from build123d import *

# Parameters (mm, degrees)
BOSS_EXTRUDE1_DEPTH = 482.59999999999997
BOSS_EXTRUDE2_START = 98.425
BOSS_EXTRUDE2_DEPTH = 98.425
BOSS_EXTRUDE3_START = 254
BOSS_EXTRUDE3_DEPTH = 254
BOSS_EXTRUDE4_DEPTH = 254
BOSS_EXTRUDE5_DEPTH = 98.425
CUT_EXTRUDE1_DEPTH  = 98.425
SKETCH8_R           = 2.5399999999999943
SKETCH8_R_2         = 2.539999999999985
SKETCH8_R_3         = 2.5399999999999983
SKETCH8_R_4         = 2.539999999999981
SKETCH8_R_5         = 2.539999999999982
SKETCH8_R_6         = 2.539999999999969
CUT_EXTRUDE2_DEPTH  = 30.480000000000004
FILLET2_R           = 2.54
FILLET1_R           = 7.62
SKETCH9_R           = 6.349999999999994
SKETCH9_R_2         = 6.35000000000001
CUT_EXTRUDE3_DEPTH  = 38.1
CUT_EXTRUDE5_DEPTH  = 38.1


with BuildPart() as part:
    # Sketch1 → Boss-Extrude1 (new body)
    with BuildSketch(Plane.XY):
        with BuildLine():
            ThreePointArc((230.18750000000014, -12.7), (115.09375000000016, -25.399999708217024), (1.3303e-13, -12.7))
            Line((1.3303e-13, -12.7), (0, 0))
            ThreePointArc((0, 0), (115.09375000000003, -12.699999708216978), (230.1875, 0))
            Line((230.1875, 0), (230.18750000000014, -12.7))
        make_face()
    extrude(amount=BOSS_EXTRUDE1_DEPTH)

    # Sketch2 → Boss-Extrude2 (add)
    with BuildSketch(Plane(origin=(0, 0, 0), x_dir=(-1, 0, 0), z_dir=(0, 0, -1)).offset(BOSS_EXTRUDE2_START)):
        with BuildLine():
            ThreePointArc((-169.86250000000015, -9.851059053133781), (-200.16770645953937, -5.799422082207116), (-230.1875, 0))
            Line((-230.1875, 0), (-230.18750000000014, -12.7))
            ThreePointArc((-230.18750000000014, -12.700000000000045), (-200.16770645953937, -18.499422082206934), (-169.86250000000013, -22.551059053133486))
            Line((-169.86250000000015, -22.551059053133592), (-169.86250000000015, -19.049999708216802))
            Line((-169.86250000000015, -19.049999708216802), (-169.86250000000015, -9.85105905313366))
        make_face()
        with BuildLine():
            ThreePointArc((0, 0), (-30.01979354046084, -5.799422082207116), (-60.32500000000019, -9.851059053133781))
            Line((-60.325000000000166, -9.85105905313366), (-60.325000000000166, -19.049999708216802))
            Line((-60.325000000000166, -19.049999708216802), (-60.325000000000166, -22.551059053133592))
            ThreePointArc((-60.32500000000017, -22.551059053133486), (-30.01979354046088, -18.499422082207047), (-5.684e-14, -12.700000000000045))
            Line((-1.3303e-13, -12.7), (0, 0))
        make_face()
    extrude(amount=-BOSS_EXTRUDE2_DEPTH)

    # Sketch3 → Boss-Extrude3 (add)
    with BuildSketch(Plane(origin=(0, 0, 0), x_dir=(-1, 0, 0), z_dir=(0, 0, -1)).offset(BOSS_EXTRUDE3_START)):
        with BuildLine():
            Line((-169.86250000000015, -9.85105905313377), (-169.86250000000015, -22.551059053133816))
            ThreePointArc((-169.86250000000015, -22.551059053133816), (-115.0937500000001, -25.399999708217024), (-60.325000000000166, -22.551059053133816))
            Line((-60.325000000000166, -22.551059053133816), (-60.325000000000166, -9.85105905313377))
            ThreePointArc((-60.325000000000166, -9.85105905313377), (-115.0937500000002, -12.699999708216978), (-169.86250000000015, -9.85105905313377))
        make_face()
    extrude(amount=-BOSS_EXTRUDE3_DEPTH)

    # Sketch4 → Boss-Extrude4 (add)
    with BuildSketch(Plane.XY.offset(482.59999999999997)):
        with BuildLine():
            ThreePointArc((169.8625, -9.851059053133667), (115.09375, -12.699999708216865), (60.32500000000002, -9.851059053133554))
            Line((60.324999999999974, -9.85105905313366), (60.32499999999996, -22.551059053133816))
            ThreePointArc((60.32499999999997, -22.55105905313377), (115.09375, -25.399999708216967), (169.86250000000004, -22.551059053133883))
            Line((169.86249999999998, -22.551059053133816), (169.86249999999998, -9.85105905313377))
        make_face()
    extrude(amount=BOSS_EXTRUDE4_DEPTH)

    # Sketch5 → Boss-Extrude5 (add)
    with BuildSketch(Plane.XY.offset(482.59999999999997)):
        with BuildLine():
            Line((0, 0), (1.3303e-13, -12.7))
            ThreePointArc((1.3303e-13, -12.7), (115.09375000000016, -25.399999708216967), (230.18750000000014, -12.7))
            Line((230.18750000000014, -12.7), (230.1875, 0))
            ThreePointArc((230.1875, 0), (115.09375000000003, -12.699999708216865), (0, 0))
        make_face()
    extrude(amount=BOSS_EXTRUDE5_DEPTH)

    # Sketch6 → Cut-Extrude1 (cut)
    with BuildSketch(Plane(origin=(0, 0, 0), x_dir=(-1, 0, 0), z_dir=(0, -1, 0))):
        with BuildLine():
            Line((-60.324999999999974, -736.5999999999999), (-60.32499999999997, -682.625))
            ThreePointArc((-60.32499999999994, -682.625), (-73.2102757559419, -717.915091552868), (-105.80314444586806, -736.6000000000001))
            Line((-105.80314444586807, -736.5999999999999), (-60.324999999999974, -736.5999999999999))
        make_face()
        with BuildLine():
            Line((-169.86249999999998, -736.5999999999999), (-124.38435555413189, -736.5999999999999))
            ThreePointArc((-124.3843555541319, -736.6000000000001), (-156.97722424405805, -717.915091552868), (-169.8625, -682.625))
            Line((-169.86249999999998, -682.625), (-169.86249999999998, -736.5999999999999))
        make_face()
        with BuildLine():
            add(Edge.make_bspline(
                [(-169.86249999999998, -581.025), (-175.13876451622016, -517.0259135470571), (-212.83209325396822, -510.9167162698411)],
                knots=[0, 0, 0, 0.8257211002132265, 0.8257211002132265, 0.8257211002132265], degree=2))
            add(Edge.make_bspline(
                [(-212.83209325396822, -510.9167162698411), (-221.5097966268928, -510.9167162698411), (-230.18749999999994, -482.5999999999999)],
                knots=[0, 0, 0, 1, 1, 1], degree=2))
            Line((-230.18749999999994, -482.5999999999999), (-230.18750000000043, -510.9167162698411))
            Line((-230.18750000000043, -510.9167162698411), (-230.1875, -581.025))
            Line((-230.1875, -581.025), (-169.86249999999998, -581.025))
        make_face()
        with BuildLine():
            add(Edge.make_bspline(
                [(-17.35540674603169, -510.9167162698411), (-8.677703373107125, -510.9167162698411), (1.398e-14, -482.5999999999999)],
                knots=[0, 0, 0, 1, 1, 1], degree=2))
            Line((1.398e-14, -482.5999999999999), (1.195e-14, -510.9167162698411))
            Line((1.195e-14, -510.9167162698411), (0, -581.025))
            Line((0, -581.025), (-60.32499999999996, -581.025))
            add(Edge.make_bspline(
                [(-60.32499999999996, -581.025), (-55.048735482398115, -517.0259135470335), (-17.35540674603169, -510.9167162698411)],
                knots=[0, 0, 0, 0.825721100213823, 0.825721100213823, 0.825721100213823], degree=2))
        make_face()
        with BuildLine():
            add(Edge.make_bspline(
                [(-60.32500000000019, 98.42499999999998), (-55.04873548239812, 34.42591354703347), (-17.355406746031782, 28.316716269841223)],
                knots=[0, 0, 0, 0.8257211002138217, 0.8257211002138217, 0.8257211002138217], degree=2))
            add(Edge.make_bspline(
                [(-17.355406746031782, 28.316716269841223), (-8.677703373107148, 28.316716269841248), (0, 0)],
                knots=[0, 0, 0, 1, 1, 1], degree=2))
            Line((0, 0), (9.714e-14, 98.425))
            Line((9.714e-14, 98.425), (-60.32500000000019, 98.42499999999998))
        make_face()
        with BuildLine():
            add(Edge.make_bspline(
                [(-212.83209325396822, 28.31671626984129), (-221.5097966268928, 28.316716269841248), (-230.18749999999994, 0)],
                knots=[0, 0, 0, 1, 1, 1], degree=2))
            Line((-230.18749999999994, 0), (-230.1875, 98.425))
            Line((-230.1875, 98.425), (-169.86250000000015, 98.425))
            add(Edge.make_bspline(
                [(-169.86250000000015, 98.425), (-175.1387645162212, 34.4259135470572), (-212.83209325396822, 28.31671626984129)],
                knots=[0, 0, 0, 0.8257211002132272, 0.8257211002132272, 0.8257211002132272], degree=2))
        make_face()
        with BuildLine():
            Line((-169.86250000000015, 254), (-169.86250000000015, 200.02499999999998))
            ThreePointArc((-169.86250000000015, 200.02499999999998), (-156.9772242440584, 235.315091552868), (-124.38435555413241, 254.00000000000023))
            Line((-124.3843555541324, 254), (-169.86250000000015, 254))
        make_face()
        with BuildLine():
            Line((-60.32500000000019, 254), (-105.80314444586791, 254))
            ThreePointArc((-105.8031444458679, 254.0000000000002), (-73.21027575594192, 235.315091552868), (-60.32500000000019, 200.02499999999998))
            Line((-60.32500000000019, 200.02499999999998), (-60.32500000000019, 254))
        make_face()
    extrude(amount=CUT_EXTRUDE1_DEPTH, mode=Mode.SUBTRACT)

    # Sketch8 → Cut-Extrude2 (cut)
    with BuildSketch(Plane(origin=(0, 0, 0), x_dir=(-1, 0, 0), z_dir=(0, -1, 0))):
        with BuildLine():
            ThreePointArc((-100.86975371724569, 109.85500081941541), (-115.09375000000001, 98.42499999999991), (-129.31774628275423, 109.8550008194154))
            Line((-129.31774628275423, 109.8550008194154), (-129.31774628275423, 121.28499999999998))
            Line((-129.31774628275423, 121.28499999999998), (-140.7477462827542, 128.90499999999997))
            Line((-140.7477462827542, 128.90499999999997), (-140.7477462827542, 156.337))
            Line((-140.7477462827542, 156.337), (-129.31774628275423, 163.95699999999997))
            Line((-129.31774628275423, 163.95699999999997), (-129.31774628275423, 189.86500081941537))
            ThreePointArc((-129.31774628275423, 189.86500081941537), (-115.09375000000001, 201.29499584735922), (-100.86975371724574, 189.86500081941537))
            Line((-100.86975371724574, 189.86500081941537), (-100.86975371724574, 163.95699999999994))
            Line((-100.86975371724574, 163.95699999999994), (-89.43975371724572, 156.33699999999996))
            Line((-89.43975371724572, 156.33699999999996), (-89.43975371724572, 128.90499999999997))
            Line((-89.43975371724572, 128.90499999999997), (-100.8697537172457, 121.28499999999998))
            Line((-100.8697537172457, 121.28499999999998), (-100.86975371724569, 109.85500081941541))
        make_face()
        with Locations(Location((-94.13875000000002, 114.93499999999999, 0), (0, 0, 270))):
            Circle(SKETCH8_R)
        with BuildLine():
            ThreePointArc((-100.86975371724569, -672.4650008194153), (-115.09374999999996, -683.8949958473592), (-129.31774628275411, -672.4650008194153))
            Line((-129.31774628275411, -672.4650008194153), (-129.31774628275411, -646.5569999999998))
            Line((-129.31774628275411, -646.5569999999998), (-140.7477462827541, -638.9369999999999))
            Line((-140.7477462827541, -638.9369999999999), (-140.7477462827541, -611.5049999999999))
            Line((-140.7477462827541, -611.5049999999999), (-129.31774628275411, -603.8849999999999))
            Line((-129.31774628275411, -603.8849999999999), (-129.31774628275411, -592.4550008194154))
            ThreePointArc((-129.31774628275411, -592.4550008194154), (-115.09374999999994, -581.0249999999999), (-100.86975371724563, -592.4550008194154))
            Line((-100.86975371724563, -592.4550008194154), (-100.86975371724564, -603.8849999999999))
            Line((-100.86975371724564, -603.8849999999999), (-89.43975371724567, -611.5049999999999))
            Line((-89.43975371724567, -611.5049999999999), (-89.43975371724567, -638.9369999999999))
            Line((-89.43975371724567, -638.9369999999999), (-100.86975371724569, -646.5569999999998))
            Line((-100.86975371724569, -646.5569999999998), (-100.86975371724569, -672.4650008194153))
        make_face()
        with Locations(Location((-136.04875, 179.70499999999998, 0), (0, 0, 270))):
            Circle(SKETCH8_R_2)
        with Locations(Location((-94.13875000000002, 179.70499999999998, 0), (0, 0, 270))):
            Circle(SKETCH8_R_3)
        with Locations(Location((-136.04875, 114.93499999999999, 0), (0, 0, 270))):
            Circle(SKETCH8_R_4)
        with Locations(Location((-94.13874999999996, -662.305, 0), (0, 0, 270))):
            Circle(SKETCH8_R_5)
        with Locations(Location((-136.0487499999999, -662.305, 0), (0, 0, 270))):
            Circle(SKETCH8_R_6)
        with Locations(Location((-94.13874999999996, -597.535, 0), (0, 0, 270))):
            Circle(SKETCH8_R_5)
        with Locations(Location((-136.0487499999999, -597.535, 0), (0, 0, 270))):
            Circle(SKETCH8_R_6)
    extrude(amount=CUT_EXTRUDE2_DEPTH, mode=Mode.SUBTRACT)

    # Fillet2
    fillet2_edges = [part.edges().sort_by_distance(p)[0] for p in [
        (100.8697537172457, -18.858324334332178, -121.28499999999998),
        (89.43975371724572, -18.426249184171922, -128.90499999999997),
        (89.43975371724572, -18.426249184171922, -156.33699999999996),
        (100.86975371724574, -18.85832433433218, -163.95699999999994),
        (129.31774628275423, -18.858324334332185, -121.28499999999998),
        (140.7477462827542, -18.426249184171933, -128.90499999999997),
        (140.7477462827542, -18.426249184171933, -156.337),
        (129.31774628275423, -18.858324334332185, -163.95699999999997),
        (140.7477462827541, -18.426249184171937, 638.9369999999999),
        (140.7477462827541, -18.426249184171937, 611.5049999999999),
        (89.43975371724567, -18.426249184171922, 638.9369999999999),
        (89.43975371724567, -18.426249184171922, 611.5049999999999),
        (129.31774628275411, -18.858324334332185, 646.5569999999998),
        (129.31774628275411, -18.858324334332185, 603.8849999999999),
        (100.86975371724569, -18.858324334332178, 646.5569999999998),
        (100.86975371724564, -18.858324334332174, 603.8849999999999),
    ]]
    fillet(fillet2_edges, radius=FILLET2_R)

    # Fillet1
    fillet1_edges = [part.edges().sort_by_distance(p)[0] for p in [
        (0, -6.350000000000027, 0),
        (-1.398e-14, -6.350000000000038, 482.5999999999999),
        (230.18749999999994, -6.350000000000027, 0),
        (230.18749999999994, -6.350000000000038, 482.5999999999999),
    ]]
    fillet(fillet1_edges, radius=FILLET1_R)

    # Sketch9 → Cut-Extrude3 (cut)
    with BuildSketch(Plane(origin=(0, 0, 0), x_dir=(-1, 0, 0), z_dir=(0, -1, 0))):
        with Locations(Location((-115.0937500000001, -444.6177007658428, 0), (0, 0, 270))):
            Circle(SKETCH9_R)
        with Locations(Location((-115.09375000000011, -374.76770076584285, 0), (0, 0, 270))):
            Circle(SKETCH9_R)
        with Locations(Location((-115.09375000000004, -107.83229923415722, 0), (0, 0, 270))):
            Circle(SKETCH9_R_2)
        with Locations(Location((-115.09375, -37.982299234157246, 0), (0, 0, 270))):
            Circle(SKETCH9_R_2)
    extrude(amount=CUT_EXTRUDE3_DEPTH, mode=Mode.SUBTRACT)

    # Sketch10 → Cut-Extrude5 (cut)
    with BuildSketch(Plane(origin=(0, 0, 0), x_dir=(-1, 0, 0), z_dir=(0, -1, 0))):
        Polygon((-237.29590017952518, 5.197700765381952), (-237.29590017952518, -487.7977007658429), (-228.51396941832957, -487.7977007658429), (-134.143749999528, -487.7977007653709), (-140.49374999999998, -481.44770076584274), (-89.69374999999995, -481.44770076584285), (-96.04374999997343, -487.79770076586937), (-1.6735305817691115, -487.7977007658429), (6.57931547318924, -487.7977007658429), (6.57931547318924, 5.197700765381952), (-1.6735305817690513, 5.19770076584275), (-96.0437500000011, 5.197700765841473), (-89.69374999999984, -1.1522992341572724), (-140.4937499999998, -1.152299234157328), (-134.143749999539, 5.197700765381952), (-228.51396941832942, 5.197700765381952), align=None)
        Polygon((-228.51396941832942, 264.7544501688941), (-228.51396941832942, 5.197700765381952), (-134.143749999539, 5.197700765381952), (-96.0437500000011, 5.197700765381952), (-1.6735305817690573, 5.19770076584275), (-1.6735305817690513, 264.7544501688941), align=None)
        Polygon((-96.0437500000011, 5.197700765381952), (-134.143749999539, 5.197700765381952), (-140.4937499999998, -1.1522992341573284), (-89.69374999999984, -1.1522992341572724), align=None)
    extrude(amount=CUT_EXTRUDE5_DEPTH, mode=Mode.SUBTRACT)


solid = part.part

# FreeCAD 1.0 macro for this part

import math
import FreeCAD as App
import Part
import Sketcher
Q = App.Units.Quantity


def edges_at(feature, points):
    """Names of the edges that pass closest to the given points."""
    edges = feature.Shape.Edges
    near = lambda p: min(range(len(edges)), key=lambda i: edges[i].distToShape(Part.Vertex(*p))[0])
    return sorted({f"Edge{near(p) + 1}" for p in points})

doc = App.newDocument("Part")
body = doc.addObject("PartDesign::Body", "Body")

sketch1 = doc.addObject("Sketcher::SketchObject", "Sketch")
body.addObject(sketch1)
sketch1.AttachmentSupport = (doc.XY_Plane, [""])
sketch1.MapMode = "FlatFace"
sketch1.addGeometry([
    Part.ArcOfCircle(Part.Circle(App.Vector(115, 502, 0), App.Vector(0, 0, 1), 528), math.radians(-103), math.radians(-77)),
    Part.LineSegment(App.Vector(230, -13, 0), App.Vector(230, 0, 0)),
    Part.ArcOfCircle(Part.Circle(App.Vector(115, 515, 0), App.Vector(0, 0, 1), 528), math.radians(-103), math.radians(-77)),
    Part.LineSegment(App.Vector(0, 0, 0), App.Vector(0, -13, 0)),
], False)
sketch1.addConstraint([
    Sketcher.Constraint("Coincident", 0, 2, 1, 1),
    Sketcher.Constraint("Coincident", 1, 2, 2, 2),
    Sketcher.Constraint("Coincident", 2, 1, 3, 1),
    Sketcher.Constraint("Coincident", 3, 2, 0, 1),
    Sketcher.Constraint("Vertical", 1),
    Sketcher.Constraint("Vertical", 3),
    Sketcher.Constraint("Equal", 0, 2),
    Sketcher.Constraint("PointOnObject", 1, 2, -1),
    Sketcher.Constraint("PointOnObject", 3, 2, -2),
    Sketcher.Constraint("Horizontal", 1, 2, 2, 1),
    Sketcher.Constraint("Horizontal", 0, 2, 3, 2),
    Sketcher.Constraint("DistanceY", 1, 1, 1, 2, Q("0.5 in")),
    Sketcher.Constraint("DistanceX", -1, 1, 0, 3, Q("4.53125 in")),
    Sketcher.Constraint("Radius", 0, Q("527.868567 mm")),
])
pad1 = doc.addObject("PartDesign::Pad", "Pad")
body.addObject(pad1)
pad1.Profile = sketch1
pad1.Length = Q("19 in")

sketch2 = doc.addObject("Sketcher::SketchObject", "Sketch001")
body.addObject(sketch2)
sketch2.AttachmentSupport = (doc.XY_Plane, [""])
sketch2.MapMode = "FlatFace"
sketch2.AttachmentOffset = App.Placement(App.Vector(0, 0, -3.875 * 25.4), App.Rotation())
sketch2.addGeometry([
    Part.ArcOfCircle(Part.Circle(App.Vector(115, 515, 0), App.Vector(0, 0, 1), 528), math.radians(-84.04), math.radians(-77.41)),
    Part.LineSegment(App.Vector(230, 0, 0), App.Vector(230, -13, 0)),
    Part.ArcOfCircle(Part.Circle(App.Vector(115, 502, 0), App.Vector(0, 0, 1), 528), math.radians(-84.04), math.radians(-77.41)),
    Part.LineSegment(App.Vector(170, -23, 0), App.Vector(170, -10, 0)),
    Part.ArcOfCircle(Part.Circle(App.Vector(115, 515, 0), App.Vector(0, 0, 1), 528), math.radians(-102.59), math.radians(-95.96)),
    Part.LineSegment(App.Vector(60, -10, 0), App.Vector(60, -23, 0)),
    Part.ArcOfCircle(Part.Circle(App.Vector(115, 502, 0), App.Vector(0, 0, 1), 528), math.radians(-102.59), math.radians(-95.96)),
    Part.LineSegment(App.Vector(0, -13, 0), App.Vector(0, 0, 0)),
], False)
sketch2.addConstraint([
    Sketcher.Constraint("Coincident", 0, 2, 1, 1),
    Sketcher.Constraint("Coincident", 1, 2, 2, 2),
    Sketcher.Constraint("Coincident", 2, 1, 3, 1),
    Sketcher.Constraint("Coincident", 3, 2, 0, 1),
    Sketcher.Constraint("Coincident", 4, 2, 5, 1),
    Sketcher.Constraint("Coincident", 5, 2, 6, 2),
    Sketcher.Constraint("Coincident", 6, 1, 7, 1),
    Sketcher.Constraint("Coincident", 7, 2, 4, 1),
    Sketcher.Constraint("Vertical", 1),
    Sketcher.Constraint("Vertical", 3),
    Sketcher.Constraint("Vertical", 5),
    Sketcher.Constraint("Vertical", 7),
    Sketcher.Constraint("Coincident", 7, 2, -1, 1),
    Sketcher.Constraint("Coincident", 4, 3, 0, 3),
    Sketcher.Constraint("Coincident", 6, 3, 2, 3),
    Sketcher.Constraint("Equal", 0, 2),
    Sketcher.Constraint("Equal", 2, 4),
    Sketcher.Constraint("Equal", 4, 6),
    Sketcher.Constraint("PointOnObject", 0, 2, -1),
    Sketcher.Constraint("Horizontal", 3, 2, 4, 2),
    Sketcher.Constraint("Horizontal", 2, 1, 5, 2),
    Sketcher.Constraint("DistanceY", 1, 2, 1, 1, Q("0.5 in")),
    Sketcher.Constraint("DistanceX", -1, 1, 0, 3, Q("4.53125 in")),
    Sketcher.Constraint("DistanceX", -1, 1, 3, 2, Q("6.6875 in")),
    Sketcher.Constraint("Radius", 0, Q("527.868567 mm")),
])
pad2 = doc.addObject("PartDesign::Pad", "Pad001")
body.addObject(pad2)
pad2.Profile = sketch2
pad2.Length = Q("3.875 in")

sketch3 = doc.addObject("Sketcher::SketchObject", "Sketch002")
body.addObject(sketch3)
sketch3.AttachmentSupport = (doc.XY_Plane, [""])
sketch3.MapMode = "FlatFace"
sketch3.AttachmentOffset = App.Placement(App.Vector(0, 0, -10 * 25.4), App.Rotation())
sketch3.addGeometry([
    Part.LineSegment(App.Vector(170, -10, 0), App.Vector(170, -23, 0)),
    Part.ArcOfCircle(Part.Circle(App.Vector(115, 502, 0), App.Vector(0, 0, 1), 528), math.radians(-95.96), math.radians(-84.04)),
    Part.LineSegment(App.Vector(60, -23, 0), App.Vector(60, -10, 0)),
    Part.ArcOfCircle(Part.Circle(App.Vector(115, 515, 0), App.Vector(0, 0, 1), 528), math.radians(-95.96), math.radians(-84.04)),
], False)
sketch3.addConstraint([
    Sketcher.Constraint("Coincident", 0, 2, 1, 2),
    Sketcher.Constraint("Coincident", 1, 1, 2, 1),
    Sketcher.Constraint("Coincident", 2, 2, 3, 1),
    Sketcher.Constraint("Coincident", 3, 2, 0, 1),
    Sketcher.Constraint("Vertical", 0),
    Sketcher.Constraint("Vertical", 2),
    Sketcher.Constraint("Equal", 1, 3),
    Sketcher.Constraint("Horizontal", 0, 2, 1, 1),
    Sketcher.Constraint("Horizontal", 2, 2, 3, 2),
    Sketcher.Constraint("DistanceY", 0, 2, 0, 1, Q("0.5 in")),
    Sketcher.Constraint("DistanceX", -1, 1, 1, 3, Q("4.53125 in")),
    Sketcher.Constraint("DistanceX", -1, 1, 0, 2, Q("6.6875 in")),
    Sketcher.Constraint("Radius", 1, Q("527.868567 mm")),
    Sketcher.Constraint("DistanceY", 0, 2, -1, 1, Q("22.551059 mm")),
])
pad3 = doc.addObject("PartDesign::Pad", "Pad002")
body.addObject(pad3)
pad3.Profile = sketch3
pad3.Length = Q("10 in")

sketch4 = doc.addObject("Sketcher::SketchObject", "Sketch003")
body.addObject(sketch4)
sketch4.AttachmentSupport = (doc.XY_Plane, [""])
sketch4.MapMode = "FlatFace"
sketch4.AttachmentOffset = App.Placement(App.Vector(0, 0, 19 * 25.4), App.Rotation())
sketch4.addGeometry([
    Part.ArcOfCircle(Part.Circle(App.Vector(115, 515, 0), App.Vector(0, 0, 1), 528), math.radians(-95.96), math.radians(-84.04)),
    Part.LineSegment(App.Vector(60, -10, 0), App.Vector(60, -23, 0)),
    Part.ArcOfCircle(Part.Circle(App.Vector(115, 502, 0), App.Vector(0, 0, 1), 528), math.radians(-95.96), math.radians(-84.04)),
    Part.LineSegment(App.Vector(170, -23, 0), App.Vector(170, -10, 0)),
], False)
sketch4.addConstraint([
    Sketcher.Constraint("Coincident", 0, 1, 1, 1),
    Sketcher.Constraint("Coincident", 1, 2, 2, 1),
    Sketcher.Constraint("Coincident", 2, 2, 3, 1),
    Sketcher.Constraint("Coincident", 3, 2, 0, 2),
    Sketcher.Constraint("Vertical", 1),
    Sketcher.Constraint("Vertical", 3),
    Sketcher.Constraint("Equal", 0, 2),
    Sketcher.Constraint("Horizontal", 1, 2, 2, 2),
    Sketcher.Constraint("Horizontal", 0, 1, 3, 2),
    Sketcher.Constraint("DistanceY", 1, 2, 1, 1, Q("0.5 in")),
    Sketcher.Constraint("DistanceX", -1, 1, 0, 3, Q("4.53125 in")),
    Sketcher.Constraint("DistanceX", -1, 1, 1, 2, Q("2.375 in")),
    Sketcher.Constraint("Radius", 0, Q("527.868567 mm")),
    Sketcher.Constraint("DistanceY", 0, 1, -1, 1, Q("9.851059 mm")),
])
pad4 = doc.addObject("PartDesign::Pad", "Pad003")
body.addObject(pad4)
pad4.Profile = sketch4
pad4.Length = Q("10 in")

sketch5 = doc.addObject("Sketcher::SketchObject", "Sketch004")
body.addObject(sketch5)
sketch5.AttachmentSupport = (doc.XY_Plane, [""])
sketch5.MapMode = "FlatFace"
sketch5.AttachmentOffset = App.Placement(App.Vector(0, 0, 19 * 25.4), App.Rotation())
sketch5.addGeometry([
    Part.LineSegment(App.Vector(0, 0, 0), App.Vector(0, -13, 0)),
    Part.ArcOfCircle(Part.Circle(App.Vector(115, 502, 0), App.Vector(0, 0, 1), 528), math.radians(-103), math.radians(-77)),
    Part.LineSegment(App.Vector(230, -13, 0), App.Vector(230, 0, 0)),
    Part.ArcOfCircle(Part.Circle(App.Vector(115, 515, 0), App.Vector(0, 0, 1), 528), math.radians(-103), math.radians(-77)),
], False)
sketch5.addConstraint([
    Sketcher.Constraint("Coincident", 0, 2, 1, 1),
    Sketcher.Constraint("Coincident", 1, 2, 2, 1),
    Sketcher.Constraint("Coincident", 2, 2, 3, 2),
    Sketcher.Constraint("Coincident", 3, 1, 0, 1),
    Sketcher.Constraint("Vertical", 0),
    Sketcher.Constraint("Vertical", 2),
    Sketcher.Constraint("Equal", 1, 3),
    Sketcher.Constraint("PointOnObject", 0, 2, -2),
    Sketcher.Constraint("PointOnObject", 2, 2, -1),
    Sketcher.Constraint("Horizontal", 0, 2, 1, 2),
    Sketcher.Constraint("Horizontal", 2, 2, 3, 1),
    Sketcher.Constraint("DistanceY", 0, 2, 0, 1, Q("0.5 in")),
    Sketcher.Constraint("DistanceX", -1, 1, 1, 3, Q("4.53125 in")),
    Sketcher.Constraint("Radius", 1, Q("527.868567 mm")),
])
pad5 = doc.addObject("PartDesign::Pad", "Pad004")
body.addObject(pad5)
pad5.Profile = sketch5
pad5.Length = Q("3.875 in")

sketch6 = doc.addObject("Sketcher::SketchObject", "Sketch005")
body.addObject(sketch6)
sketch6.AttachmentSupport = (doc.XZ_Plane, [""])
sketch6.MapMode = "FlatFace"
sketch6.addGeometry([
    Part.LineSegment(App.Vector(60.325, 736.6, 0), App.Vector(60.325, 682.625, 0)),
    Part.ArcOfCircle(Part.Circle(App.Vector(115.09375, 682.625, 0), App.Vector(0, 0, 1), 54.76875), math.radians(99.766501), math.radians(180)),
    Part.LineSegment(App.Vector(105.803144, 736.6, 0), App.Vector(60.325, 736.6, 0)),
    Part.LineSegment(App.Vector(169.8625, 736.6, 0), App.Vector(124.384356, 736.6, 0)),
    Part.ArcOfCircle(Part.Circle(App.Vector(115.09375, 682.625, 0), App.Vector(0, 0, 1), 54.76875), math.radians(0), math.radians(80.233499)),
    Part.LineSegment(App.Vector(169.8625, 682.625, 0), App.Vector(169.8625, 736.6, 0)),
    Part.BSplineCurve([App.Vector(169.8625, 581.025, 0), App.Vector(175.138765, 517.025914, 0), App.Vector(212.832093, 510.916716, 0)], [3, 3], [0, 0.8257211], False, 2, [1, 1, 1], False),
    Part.BSplineCurve([App.Vector(212.832093, 510.916716, 0), App.Vector(221.509797, 510.916716, 0), App.Vector(230.1875, 482.6, 0)], [3, 3], [0, 1], False, 2, [1, 1, 1], False),
    Part.LineSegment(App.Vector(230.1875, 482.6, 0), App.Vector(230.1875, 581.025, 0)),
    Part.LineSegment(App.Vector(230.1875, 581.025, 0), App.Vector(169.8625, 581.025, 0)),
    Part.BSplineCurve([App.Vector(17.355407, 510.916716, 0), App.Vector(8.677703, 510.916716, 0), App.Vector(0, 482.6, 0)], [3, 3], [0, 1], False, 2, [1, 1, 1], False),
    Part.BSplineCurve([App.Vector(60.325, 581.025, 0), App.Vector(55.048735, 517.025914, 0), App.Vector(17.355407, 510.916716, 0)], [3, 3], [0, 0.8257211], False, 2, [1, 1, 1], False),
    Part.LineSegment(App.Vector(60.325, 581.025, 0), App.Vector(0, 581.025, 0)),
    Part.LineSegment(App.Vector(0, 581.025, 0), App.Vector(0, 482.6, 0)),
    Part.BSplineCurve([App.Vector(60.325, -98.425, 0), App.Vector(55.048735, -34.425914, 0), App.Vector(17.355407, -28.316716, 0)], [3, 3], [0, 0.8257211], False, 2, [1, 1, 1], False),
    Part.BSplineCurve([App.Vector(17.355407, -28.316716, 0), App.Vector(8.677703, -28.316716, 0), App.Vector(0, 0, 0)], [3, 3], [0, 1], False, 2, [1, 1, 1], False),
    Part.LineSegment(App.Vector(0, 0, 0), App.Vector(0, -98.425, 0)),
    Part.LineSegment(App.Vector(0, -98.425, 0), App.Vector(60.325, -98.425, 0)),
    Part.BSplineCurve([App.Vector(212.832093, -28.316716, 0), App.Vector(221.509797, -28.316716, 0), App.Vector(230.1875, 0, 0)], [3, 3], [0, 1], False, 2, [1, 1, 1], False),
    Part.BSplineCurve([App.Vector(169.8625, -98.425, 0), App.Vector(175.138765, -34.425914, 0), App.Vector(212.832093, -28.316716, 0)], [3, 3], [0, 0.8257211], False, 2, [1, 1, 1], False),
    Part.LineSegment(App.Vector(169.8625, -98.425, 0), App.Vector(230.1875, -98.425, 0)),
    Part.LineSegment(App.Vector(230.1875, -98.425, 0), App.Vector(230.1875, 0, 0)),
    Part.LineSegment(App.Vector(169.8625, -254, 0), App.Vector(169.8625, -200.025, 0)),
    Part.ArcOfCircle(Part.Circle(App.Vector(115.09375, -200.025, 0), App.Vector(0, 0, 1), 54.76875), math.radians(-80.233499), math.radians(0)),
    Part.LineSegment(App.Vector(124.384356, -254, 0), App.Vector(169.8625, -254, 0)),
    Part.LineSegment(App.Vector(60.325, -254, 0), App.Vector(105.803144, -254, 0)),
    Part.ArcOfCircle(Part.Circle(App.Vector(115.09375, -200.025, 0), App.Vector(0, 0, 1), 54.76875), math.radians(180), math.radians(260.233499)),
    Part.LineSegment(App.Vector(60.325, -200.025, 0), App.Vector(60.325, -254, 0)),
], False)
sketch6.addConstraint([
    Sketcher.Constraint("Block", 6),
    Sketcher.Constraint("Block", 7),
    Sketcher.Constraint("Block", 10),
    Sketcher.Constraint("Block", 11),
    Sketcher.Constraint("Block", 14),
    Sketcher.Constraint("Block", 15),
    Sketcher.Constraint("Block", 18),
    Sketcher.Constraint("Block", 19),
    Sketcher.Constraint("Tangent", 0, 2, 1, 2),
    Sketcher.Constraint("Coincident", 1, 1, 2, 1),
    Sketcher.Constraint("Coincident", 2, 2, 0, 1),
    Sketcher.Constraint("Coincident", 3, 2, 4, 2),
    Sketcher.Constraint("Tangent", 4, 1, 5, 1),
    Sketcher.Constraint("Coincident", 5, 2, 3, 1),
    Sketcher.Constraint("Coincident", 7, 2, 8, 1),
    Sketcher.Constraint("Coincident", 8, 2, 9, 1),
    Sketcher.Constraint("Coincident", 9, 2, 6, 1),
    Sketcher.Constraint("Coincident", 11, 1, 12, 1),
    Sketcher.Constraint("Coincident", 12, 2, 13, 1),
    Sketcher.Constraint("Coincident", 13, 2, 10, 2),
    Sketcher.Constraint("Coincident", 15, 2, 16, 1),
    Sketcher.Constraint("Coincident", 16, 2, 17, 1),
    Sketcher.Constraint("Coincident", 17, 2, 14, 1),
    Sketcher.Constraint("Coincident", 19, 1, 20, 1),
    Sketcher.Constraint("Coincident", 20, 2, 21, 1),
    Sketcher.Constraint("Coincident", 21, 2, 18, 2),
    Sketcher.Constraint("Tangent", 22, 2, 23, 2),
    Sketcher.Constraint("Coincident", 23, 1, 24, 1),
    Sketcher.Constraint("Coincident", 24, 2, 22, 1),
    Sketcher.Constraint("Coincident", 25, 2, 26, 2),
    Sketcher.Constraint("Tangent", 26, 1, 27, 1),
    Sketcher.Constraint("Coincident", 27, 2, 25, 1),
    Sketcher.Constraint("Vertical", 0),
    Sketcher.Constraint("Horizontal", 2),
    Sketcher.Constraint("Horizontal", 3),
    Sketcher.Constraint("Vertical", 5),
    Sketcher.Constraint("Vertical", 8),
    Sketcher.Constraint("Horizontal", 9),
    Sketcher.Constraint("Horizontal", 12),
    Sketcher.Constraint("Vertical", 13),
    Sketcher.Constraint("Vertical", 16),
    Sketcher.Constraint("Horizontal", 17),
    Sketcher.Constraint("Horizontal", 20),
    Sketcher.Constraint("Vertical", 21),
    Sketcher.Constraint("Vertical", 22),
    Sketcher.Constraint("Horizontal", 24),
    Sketcher.Constraint("Horizontal", 25),
    Sketcher.Constraint("Vertical", 27),
    Sketcher.Constraint("Coincident", 4, 3, 1, 3),
    Sketcher.Constraint("Coincident", 26, 3, 23, 3),
    Sketcher.Constraint("Equal", 1, 4),
    Sketcher.Constraint("Equal", 4, 23),
    Sketcher.Constraint("Equal", 23, 26),
    Sketcher.Constraint("Horizontal", 2, 2, 3, 2),
    Sketcher.Constraint("Horizontal", 24, 2, 25, 2),
    Sketcher.Constraint("Vertical", 4, 3, 23, 3),
    Sketcher.Constraint("Vertical", 5, 2, 9, 2),
    Sketcher.Constraint("Vertical", 2, 2, 17, 2),
    Sketcher.Constraint("Vertical", 3, 2, 23, 1),
    Sketcher.Constraint("DistanceY", -1, 1, 1, 1, Q("29 in")),
    Sketcher.Constraint("DistanceY", 23, 1, -1, 1, Q("10 in")),
    Sketcher.Constraint("DistanceY", 8, 2, 1, 3, Q("4 in")),
])
pocket1 = doc.addObject("PartDesign::Pocket", "Pocket")
body.addObject(pocket1)
pocket1.Profile = sketch6
pocket1.Length = Q("3.875 in")
pocket1.Reversed = True

sketch7 = doc.addObject("Sketcher::SketchObject", "Sketch006")
body.addObject(sketch7)
sketch7.AttachmentSupport = (doc.XZ_Plane, [""])
sketch7.MapMode = "FlatFace"
sketch7.addGeometry([
    Part.ArcOfCircle(Part.Circle(App.Vector(115.1, -113, 0), App.Vector(0, 0, 1), 14.6), math.radians(12), math.radians(168)),
    Part.LineSegment(App.Vector(100.9, -109.9, 0), App.Vector(100.9, -121.3, 0)),
    Part.LineSegment(App.Vector(100.9, -121.3, 0), App.Vector(89.4, -128.9, 0)),
    Part.LineSegment(App.Vector(89.4, -128.9, 0), App.Vector(89.4, -156.3, 0)),
    Part.LineSegment(App.Vector(89.4, -156.3, 0), App.Vector(100.9, -164, 0)),
    Part.LineSegment(App.Vector(100.9, -164, 0), App.Vector(100.9, -189.9, 0)),
    Part.ArcOfCircle(Part.Circle(App.Vector(115.1, -186.7, 0), App.Vector(0, 0, 1), 14.6), math.radians(-168), math.radians(-12)),
    Part.LineSegment(App.Vector(129.3, -189.9, 0), App.Vector(129.3, -164, 0)),
    Part.LineSegment(App.Vector(129.3, -164, 0), App.Vector(140.7, -156.3, 0)),
    Part.LineSegment(App.Vector(140.7, -156.3, 0), App.Vector(140.7, -128.9, 0)),
    Part.LineSegment(App.Vector(140.7, -128.9, 0), App.Vector(129.3, -121.3, 0)),
    Part.LineSegment(App.Vector(129.3, -121.3, 0), App.Vector(129.3, -109.9, 0)),
    Part.Circle(App.Vector(94.1, -114.9, 0), App.Vector(0, 0, 1), 2.5),
    Part.ArcOfCircle(Part.Circle(App.Vector(115.1, 669.3, 0), App.Vector(0, 0, 1), 14.6), math.radians(12), math.radians(168)),
    Part.LineSegment(App.Vector(100.9, 672.5, 0), App.Vector(100.9, 646.6, 0)),
    Part.LineSegment(App.Vector(100.9, 646.6, 0), App.Vector(89.4, 638.9, 0)),
    Part.LineSegment(App.Vector(89.4, 638.9, 0), App.Vector(89.4, 611.5, 0)),
    Part.LineSegment(App.Vector(89.4, 611.5, 0), App.Vector(100.9, 603.9, 0)),
    Part.LineSegment(App.Vector(100.9, 603.9, 0), App.Vector(100.9, 592.5, 0)),
    Part.ArcOfCircle(Part.Circle(App.Vector(115.1, 595.6, 0), App.Vector(0, 0, 1), 14.6), math.radians(-168), math.radians(-12)),
    Part.LineSegment(App.Vector(129.3, 592.5, 0), App.Vector(129.3, 603.9, 0)),
    Part.LineSegment(App.Vector(129.3, 603.9, 0), App.Vector(140.7, 611.5, 0)),
    Part.LineSegment(App.Vector(140.7, 611.5, 0), App.Vector(140.7, 638.9, 0)),
    Part.LineSegment(App.Vector(140.7, 638.9, 0), App.Vector(129.3, 646.6, 0)),
    Part.LineSegment(App.Vector(129.3, 646.6, 0), App.Vector(129.3, 672.5, 0)),
    Part.Circle(App.Vector(136, -179.7, 0), App.Vector(0, 0, 1), 2.5),
    Part.Circle(App.Vector(94.1, -179.7, 0), App.Vector(0, 0, 1), 2.5),
    Part.Circle(App.Vector(136, -114.9, 0), App.Vector(0, 0, 1), 2.5),
    Part.Circle(App.Vector(94.1, 662.3, 0), App.Vector(0, 0, 1), 2.5),
    Part.Circle(App.Vector(136, 662.3, 0), App.Vector(0, 0, 1), 2.5),
    Part.Circle(App.Vector(94.1, 597.5, 0), App.Vector(0, 0, 1), 2.5),
    Part.Circle(App.Vector(136, 597.5, 0), App.Vector(0, 0, 1), 2.5),
], False)
sketch7.addConstraint([
    Sketcher.Constraint("Coincident", 0, 2, 1, 1),
    Sketcher.Constraint("Coincident", 1, 2, 2, 1),
    Sketcher.Constraint("Coincident", 2, 2, 3, 1),
    Sketcher.Constraint("Coincident", 3, 2, 4, 1),
    Sketcher.Constraint("Coincident", 4, 2, 5, 1),
    Sketcher.Constraint("Coincident", 5, 2, 6, 1),
    Sketcher.Constraint("Coincident", 6, 2, 7, 1),
    Sketcher.Constraint("Coincident", 7, 2, 8, 1),
    Sketcher.Constraint("Coincident", 8, 2, 9, 1),
    Sketcher.Constraint("Coincident", 9, 2, 10, 1),
    Sketcher.Constraint("Coincident", 10, 2, 11, 1),
    Sketcher.Constraint("Coincident", 11, 2, 0, 1),
    Sketcher.Constraint("Coincident", 13, 2, 14, 1),
    Sketcher.Constraint("Coincident", 14, 2, 15, 1),
    Sketcher.Constraint("Coincident", 15, 2, 16, 1),
    Sketcher.Constraint("Coincident", 16, 2, 17, 1),
    Sketcher.Constraint("Coincident", 17, 2, 18, 1),
    Sketcher.Constraint("Coincident", 18, 2, 19, 1),
    Sketcher.Constraint("Coincident", 19, 2, 20, 1),
    Sketcher.Constraint("Coincident", 20, 2, 21, 1),
    Sketcher.Constraint("Coincident", 21, 2, 22, 1),
    Sketcher.Constraint("Coincident", 22, 2, 23, 1),
    Sketcher.Constraint("Coincident", 23, 2, 24, 1),
    Sketcher.Constraint("Coincident", 24, 2, 13, 1),
    Sketcher.Constraint("Vertical", 1),
    Sketcher.Constraint("Vertical", 3),
    Sketcher.Constraint("Vertical", 5),
    Sketcher.Constraint("Vertical", 7),
    Sketcher.Constraint("Vertical", 9),
    Sketcher.Constraint("Vertical", 11),
    Sketcher.Constraint("Vertical", 14),
    Sketcher.Constraint("Vertical", 16),
    Sketcher.Constraint("Vertical", 18),
    Sketcher.Constraint("Vertical", 20),
    Sketcher.Constraint("Vertical", 22),
    Sketcher.Constraint("Vertical", 24),
    Sketcher.Constraint("Equal", 0, 6),
    Sketcher.Constraint("Equal", 6, 13),
    Sketcher.Constraint("Equal", 13, 19),
    Sketcher.Constraint("Equal", 12, 25),
    Sketcher.Constraint("Equal", 25, 26),
    Sketcher.Constraint("Equal", 26, 27),
    Sketcher.Constraint("Equal", 27, 28),
    Sketcher.Constraint("Equal", 28, 29),
    Sketcher.Constraint("Equal", 29, 30),
    Sketcher.Constraint("Equal", 30, 31),
    Sketcher.Constraint("Parallel", 2, 8),
    Sketcher.Constraint("Parallel", 4, 10),
    Sketcher.Constraint("Parallel", 8, 15),
    Sketcher.Constraint("Parallel", 10, 17),
    Sketcher.Constraint("Parallel", 15, 21),
    Sketcher.Constraint("Parallel", 17, 23),
    Sketcher.Constraint("Horizontal", 25, 3, 26, 3),
    Sketcher.Constraint("Horizontal", 12, 3, 27, 3),
    Sketcher.Constraint("Horizontal", 28, 3, 29, 3),
    Sketcher.Constraint("Horizontal", 30, 3, 31, 3),
    Sketcher.Constraint("Horizontal", 5, 2, 6, 2),
    Sketcher.Constraint("Horizontal", 4, 2, 7, 2),
    Sketcher.Constraint("Horizontal", 3, 2, 8, 2),
    Sketcher.Constraint("Horizontal", 2, 2, 9, 2),
    Sketcher.Constraint("Horizontal", 1, 2, 10, 2),
    Sketcher.Constraint("Horizontal", 0, 2, 11, 2),
    Sketcher.Constraint("Horizontal", 18, 2, 19, 2),
    Sketcher.Constraint("Horizontal", 17, 2, 20, 2),
    Sketcher.Constraint("Horizontal", 16, 2, 21, 2),
    Sketcher.Constraint("Horizontal", 15, 2, 22, 2),
    Sketcher.Constraint("Horizontal", 14, 2, 23, 2),
    Sketcher.Constraint("Horizontal", 13, 2, 24, 2),
    Sketcher.Constraint("Vertical", 0, 3, 6, 3),
    Sketcher.Constraint("Vertical", 6, 3, 13, 3),
    Sketcher.Constraint("Vertical", 12, 3, 26, 3),
    Sketcher.Constraint("Vertical", 25, 3, 27, 3),
    Sketcher.Constraint("Vertical", 26, 3, 28, 3),
    Sketcher.Constraint("Vertical", 27, 3, 29, 3),
    Sketcher.Constraint("Vertical", 28, 3, 30, 3),
    Sketcher.Constraint("Vertical", 29, 3, 31, 3),
    Sketcher.Constraint("Vertical", 1, 2, 4, 2),
    Sketcher.Constraint("Vertical", 5, 2, 13, 2),
    Sketcher.Constraint("Vertical", 3, 2, 15, 2),
    Sketcher.Constraint("Vertical", 14, 2, 17, 2),
    Sketcher.Constraint("Equal", 7, 14),
    Sketcher.Constraint("Equal", 9, 16),
    Sketcher.Constraint("Equal", 11, 18),
    Sketcher.Constraint("Diameter", 12, Q("0.2 in")),
    Sketcher.Constraint("DistanceY", 1, 2, 1, 1, Q("0.45 in")),
    Sketcher.Constraint("DistanceY", 3, 2, 3, 1, Q("1.08 in")),
    Sketcher.Constraint("DistanceY", 5, 2, 5, 1, Q("1.02 in")),
    Sketcher.Constraint("DistanceY", 12, 3, 28, 3, Q("30.6 in")),
    Sketcher.Constraint("DistanceY", 12, 3, 0, 2, Q("0.2 in")),
    Sketcher.Constraint("DistanceY", 26, 3, 1, 2, Q("2.3 in")),
    Sketcher.Constraint("DistanceY", 2, 2, 1, 2, Q("0.3 in")),
    Sketcher.Constraint("DistanceY", 28, 3, 13, 2, Q("0.4 in")),
    Sketcher.Constraint("DistanceY", 18, 2, 30, 3, Q("0.2 in")),
    Sketcher.Constraint("DistanceX", 12, 3, 25, 3, Q("1.65 in")),
    Sketcher.Constraint("DistanceX", 0, 2, 0, 3, Q("0.5599999 in")),
    Sketcher.Constraint("DistanceX", 2, 2, 1, 2, Q("0.45 in")),
    Sketcher.Constraint("DistanceX", -1, 1, 0, 3, Q("4.53125 in")),
    Sketcher.Constraint("DistanceY", 12, 3, -1, 1, Q("4.525 in")),
    Sketcher.Constraint("DistanceX", 12, 3, 0, 3, Q("0.825 in")),
    Sketcher.Constraint("Radius", 0, Q("14.565484 mm")),
])
pocket2 = doc.addObject("PartDesign::Pocket", "Pocket001")
body.addObject(pocket2)
pocket2.Profile = sketch7
pocket2.Length = Q("1.2 in")
pocket2.Reversed = True
doc.recompute()

fillet = doc.addObject("PartDesign::Fillet", "Fillet")
body.addObject(fillet)
fillet.Base = (pocket2, edges_at(pocket2, [
    (100.87, -18.858, -121.285),
    (89.44, -18.426, -128.905),
    (89.44, -18.426, -156.337),
    (100.87, -18.858, -163.957),
    (129.318, -18.858, -121.285),
    (140.748, -18.426, -128.905),
    (140.748, -18.426, -156.337),
    (129.318, -18.858, -163.957),
    (140.748, -18.426, 638.937),
    (140.748, -18.426, 611.505),
    (89.44, -18.426, 638.937),
    (89.44, -18.426, 611.505),
    (129.318, -18.858, 646.557),
    (129.318, -18.858, 603.885),
    (100.87, -18.858, 646.557),
    (100.87, -18.858, 603.885),
]))
fillet.Radius = Q("0.1 in")
doc.recompute()

fillet2 = doc.addObject("PartDesign::Fillet", "Fillet001")
body.addObject(fillet2)
fillet2.Base = (fillet, edges_at(fillet, [
    (0, -6.35, 0),
    (0, -6.35, 482.6),
    (230.188, -6.35, 0),
    (230.188, -6.35, 482.6),
]))
fillet2.Radius = Q("0.3 in")

sketch8 = doc.addObject("Sketcher::SketchObject", "Sketch007")
body.addObject(sketch8)
sketch8.AttachmentSupport = (doc.XZ_Plane, [""])
sketch8.MapMode = "FlatFace"
sketch8.addGeometry([
    Part.Circle(App.Vector(115, 445, 0), App.Vector(0, 0, 1), 6),
    Part.Circle(App.Vector(115, 375, 0), App.Vector(0, 0, 1), 6),
    Part.Circle(App.Vector(115, 108, 0), App.Vector(0, 0, 1), 6),
    Part.Circle(App.Vector(115, 38, 0), App.Vector(0, 0, 1), 6),
], False)
sketch8.addConstraint([
    Sketcher.Constraint("Equal", 0, 1),
    Sketcher.Constraint("Equal", 1, 2),
    Sketcher.Constraint("Equal", 2, 3),
    Sketcher.Constraint("Vertical", 0, 3, 1, 3),
    Sketcher.Constraint("Vertical", 1, 3, 2, 3),
    Sketcher.Constraint("Vertical", 2, 3, 3, 3),
    Sketcher.Constraint("Diameter", 0, Q("0.5 in")),
    Sketcher.Constraint("DistanceY", 1, 3, 0, 3, Q("2.75 in")),
    Sketcher.Constraint("DistanceY", 3, 3, 2, 3, Q("2.75 in")),
    Sketcher.Constraint("DistanceX", -1, 1, 0, 3, Q("4.53125 in")),
    Sketcher.Constraint("DistanceY", -1, 1, 0, 3, Q("444.617701 mm")),
    Sketcher.Constraint("DistanceY", -1, 1, 2, 3, Q("107.832299 mm")),
])
pocket3 = doc.addObject("PartDesign::Pocket", "Pocket002")
body.addObject(pocket3)
pocket3.Profile = sketch8
pocket3.Length = Q("1.5 in")
pocket3.Reversed = True

sketch9 = doc.addObject("Sketcher::SketchObject", "Sketch008")
body.addObject(sketch9)
sketch9.AttachmentSupport = (doc.XZ_Plane, [""])
sketch9.MapMode = "FlatFace"
sketch9.addGeometry([
    Part.LineSegment(App.Vector(237, -5, 0), App.Vector(237, 488, 0)),
    Part.LineSegment(App.Vector(237, 488, 0), App.Vector(229, 488, 0)),
    Part.LineSegment(App.Vector(229, 488, 0), App.Vector(134, 488, 0)),
    Part.LineSegment(App.Vector(134, 488, 0), App.Vector(140, 481, 0)),
    Part.LineSegment(App.Vector(140, 481, 0), App.Vector(90, 481, 0)),
    Part.LineSegment(App.Vector(90, 481, 0), App.Vector(96, 488, 0)),
    Part.LineSegment(App.Vector(96, 488, 0), App.Vector(-7, 488, 0)),
    Part.LineSegment(App.Vector(-7, 488, 0), App.Vector(-7, -5, 0)),
    Part.LineSegment(App.Vector(-7, -5, 0), App.Vector(2, -5, 0)),
    Part.LineSegment(App.Vector(2, -5, 0), App.Vector(2, -265, 0)),
    Part.LineSegment(App.Vector(2, -265, 0), App.Vector(229, -265, 0)),
    Part.LineSegment(App.Vector(229, -265, 0), App.Vector(229, -5, 0)),
    Part.LineSegment(App.Vector(229, -5, 0), App.Vector(237, -5, 0)),
], False)
sketch9.addConstraint([
    Sketcher.Constraint("Coincident", 0, 2, 1, 1),
    Sketcher.Constraint("Coincident", 1, 2, 2, 1),
    Sketcher.Constraint("Coincident", 2, 2, 3, 1),
    Sketcher.Constraint("Coincident", 3, 2, 4, 1),
    Sketcher.Constraint("Coincident", 4, 2, 5, 1),
    Sketcher.Constraint("Coincident", 5, 2, 6, 1),
    Sketcher.Constraint("Coincident", 6, 2, 7, 1),
    Sketcher.Constraint("Coincident", 7, 2, 8, 1),
    Sketcher.Constraint("Coincident", 8, 2, 9, 1),
    Sketcher.Constraint("Coincident", 9, 2, 10, 1),
    Sketcher.Constraint("Coincident", 10, 2, 11, 1),
    Sketcher.Constraint("Coincident", 11, 2, 12, 1),
    Sketcher.Constraint("Coincident", 12, 2, 0, 1),
    Sketcher.Constraint("Vertical", 0),
    Sketcher.Constraint("Horizontal", 1),
    Sketcher.Constraint("Horizontal", 2),
    Sketcher.Constraint("Horizontal", 4),
    Sketcher.Constraint("Horizontal", 6),
    Sketcher.Constraint("Vertical", 7),
    Sketcher.Constraint("Horizontal", 8),
    Sketcher.Constraint("Vertical", 9),
    Sketcher.Constraint("Horizontal", 10),
    Sketcher.Constraint("Vertical", 11),
    Sketcher.Constraint("Horizontal", 12),
    Sketcher.Constraint("Perpendicular", 3, 5),
    Sketcher.Constraint("Horizontal", 2, 2, 5, 2),
    Sketcher.Constraint("Horizontal", 8, 2, 11, 2),
    Sketcher.Constraint("Vertical", 1, 2, 10, 2),
    Sketcher.Constraint("Equal", 3, 5),
    Sketcher.Constraint("DistanceX", 4, 2, 4, 1, Q("2 in")),
    Sketcher.Constraint("DistanceX", 5, 2, 2, 2, Q("1.5 in")),
    Sketcher.Constraint("DistanceX", -1, 1, 2, 2, Q("5.28125 in")),
    Sketcher.Constraint("DistanceY", 0, 1, 0, 2, Q("492.995402 mm")),
    Sketcher.Constraint("DistanceX", 1, 2, 1, 1, Q("8.781931 mm")),
    Sketcher.Constraint("DistanceX", 2, 2, 2, 1, Q("94.370219 mm")),
    Sketcher.Constraint("DistanceX", 10, 1, 10, 2, Q("226.840439 mm")),
    Sketcher.Constraint("DistanceY", 9, 2, 9, 1, Q("259.556749 mm")),
    Sketcher.Constraint("DistanceY", -1, 1, 0, 2, Q("487.797701 mm")),
    Sketcher.Constraint("DistanceX", 6, 2, 6, 1, Q("102.623065 mm")),
])
pocket4 = doc.addObject("PartDesign::Pocket", "Pocket003")
body.addObject(pocket4)
pocket4.Profile = sketch9
pocket4.Length = Q("1.5 in")
pocket4.Reversed = True

doc.recompute()
